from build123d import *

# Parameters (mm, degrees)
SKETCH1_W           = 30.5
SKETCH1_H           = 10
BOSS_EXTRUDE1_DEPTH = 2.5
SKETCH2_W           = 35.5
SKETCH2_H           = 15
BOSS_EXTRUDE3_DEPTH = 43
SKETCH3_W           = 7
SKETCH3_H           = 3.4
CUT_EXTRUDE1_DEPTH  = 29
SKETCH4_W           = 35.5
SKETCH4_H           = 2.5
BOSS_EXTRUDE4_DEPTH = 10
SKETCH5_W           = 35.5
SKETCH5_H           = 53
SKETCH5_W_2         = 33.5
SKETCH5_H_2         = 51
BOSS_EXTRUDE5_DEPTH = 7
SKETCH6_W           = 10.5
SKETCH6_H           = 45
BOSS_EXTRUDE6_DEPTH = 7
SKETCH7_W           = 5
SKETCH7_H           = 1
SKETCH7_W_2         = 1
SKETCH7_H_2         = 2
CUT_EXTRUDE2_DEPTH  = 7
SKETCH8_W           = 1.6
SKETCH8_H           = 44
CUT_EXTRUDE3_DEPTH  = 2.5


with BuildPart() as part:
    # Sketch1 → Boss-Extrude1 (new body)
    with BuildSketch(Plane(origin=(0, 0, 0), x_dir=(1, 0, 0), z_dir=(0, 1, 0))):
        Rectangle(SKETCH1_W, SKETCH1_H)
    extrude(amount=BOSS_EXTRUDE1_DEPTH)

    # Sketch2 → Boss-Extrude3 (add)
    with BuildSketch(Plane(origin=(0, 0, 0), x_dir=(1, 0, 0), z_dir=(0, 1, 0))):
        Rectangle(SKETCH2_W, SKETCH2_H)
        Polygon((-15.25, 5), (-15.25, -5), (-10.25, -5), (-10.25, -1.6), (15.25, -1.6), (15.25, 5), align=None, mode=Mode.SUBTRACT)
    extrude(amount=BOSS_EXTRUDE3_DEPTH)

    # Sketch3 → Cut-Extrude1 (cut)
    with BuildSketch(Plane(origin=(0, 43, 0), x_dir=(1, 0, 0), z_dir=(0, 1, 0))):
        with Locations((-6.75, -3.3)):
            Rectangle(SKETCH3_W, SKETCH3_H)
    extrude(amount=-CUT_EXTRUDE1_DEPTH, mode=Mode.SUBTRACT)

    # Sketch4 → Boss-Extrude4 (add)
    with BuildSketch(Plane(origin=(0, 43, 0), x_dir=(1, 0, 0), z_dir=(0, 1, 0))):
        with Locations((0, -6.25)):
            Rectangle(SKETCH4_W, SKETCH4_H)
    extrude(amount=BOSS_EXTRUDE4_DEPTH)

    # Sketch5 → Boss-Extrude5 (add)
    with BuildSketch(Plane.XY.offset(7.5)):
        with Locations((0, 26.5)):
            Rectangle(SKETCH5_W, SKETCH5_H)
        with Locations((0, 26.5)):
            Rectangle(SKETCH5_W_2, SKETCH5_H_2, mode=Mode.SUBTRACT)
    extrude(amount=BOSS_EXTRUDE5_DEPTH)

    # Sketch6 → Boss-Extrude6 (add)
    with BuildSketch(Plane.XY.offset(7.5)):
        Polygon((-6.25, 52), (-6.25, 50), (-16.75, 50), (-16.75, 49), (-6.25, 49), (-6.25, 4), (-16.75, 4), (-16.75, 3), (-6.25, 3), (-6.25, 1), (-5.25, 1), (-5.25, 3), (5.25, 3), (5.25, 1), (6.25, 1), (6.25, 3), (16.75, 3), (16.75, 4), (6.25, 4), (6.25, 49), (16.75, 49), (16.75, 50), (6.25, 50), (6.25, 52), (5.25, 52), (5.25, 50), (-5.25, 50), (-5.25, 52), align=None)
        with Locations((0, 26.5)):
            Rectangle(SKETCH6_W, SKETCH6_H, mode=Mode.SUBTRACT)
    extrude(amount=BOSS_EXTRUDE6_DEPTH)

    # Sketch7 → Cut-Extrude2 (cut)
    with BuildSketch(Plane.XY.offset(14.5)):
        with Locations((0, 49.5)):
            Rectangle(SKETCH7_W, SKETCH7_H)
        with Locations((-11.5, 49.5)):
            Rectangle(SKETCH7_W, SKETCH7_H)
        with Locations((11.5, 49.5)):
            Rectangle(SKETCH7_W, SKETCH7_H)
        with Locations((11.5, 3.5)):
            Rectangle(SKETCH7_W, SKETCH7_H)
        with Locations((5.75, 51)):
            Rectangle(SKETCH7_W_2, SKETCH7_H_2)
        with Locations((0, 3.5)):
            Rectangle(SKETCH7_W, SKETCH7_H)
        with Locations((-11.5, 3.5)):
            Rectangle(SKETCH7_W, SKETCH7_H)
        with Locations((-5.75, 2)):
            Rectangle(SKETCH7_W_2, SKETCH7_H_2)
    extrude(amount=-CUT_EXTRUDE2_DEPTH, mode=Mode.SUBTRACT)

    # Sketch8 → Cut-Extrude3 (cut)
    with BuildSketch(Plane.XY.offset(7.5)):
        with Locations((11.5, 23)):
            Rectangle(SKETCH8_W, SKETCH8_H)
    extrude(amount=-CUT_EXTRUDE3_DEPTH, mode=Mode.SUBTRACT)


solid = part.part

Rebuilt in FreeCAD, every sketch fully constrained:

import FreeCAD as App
import Part
import Sketcher
Q = App.Units.Quantity


def add_polygon(sketch, points):
    """Adds a closed chain of lines whose ends are joined by coincident constraints."""
    first, n = sketch.GeometryCount, len(points)
    for a, b in zip(points, points[1:] + points[:1]):
        sketch.addGeometry(Part.LineSegment(App.Vector(*a, 0), App.Vector(*b, 0)), False)
    for i in range(n):
        sketch.addConstraint(Sketcher.Constraint("Coincident", first + i, 2, first + (i + 1) % n, 1))

doc = App.newDocument("Part")
body = doc.addObject("PartDesign::Body", "Body")

sketch1 = body.newObject("Sketcher::SketchObject", "Sketch")
sketch1.AttachmentSupport = (doc.getObject("XZ_Plane"), [""])
sketch1.MapMode = "FlatFace"
add_polygon(sketch1, [(-15, -5), (-15, 5), (15, 5), (15, -5)])
sketch1.addConstraint(Sketcher.Constraint("Vertical", 0))
sketch1.addConstraint(Sketcher.Constraint("Horizontal", 1))
sketch1.addConstraint(Sketcher.Constraint("Vertical", 2))
sketch1.addConstraint(Sketcher.Constraint("Horizontal", 3))
sketch1.addConstraint(Sketcher.Constraint("Symmetric", 0, 2, 2, 2, -1, 1))
sketch1.addConstraint(Sketcher.Constraint("DistanceY", 0, 1, 0, 2, Q("10 mm")))
sketch1.addConstraint(Sketcher.Constraint("DistanceX", 1, 1, 1, 2, Q("30.5 mm")))
pad1 = body.newObject("PartDesign::Pad", "Pad")
pad1.Profile = sketch1
pad1.Length = 2.5
pad1.Reversed = True

sketch2 = body.newObject("Sketcher::SketchObject", "Sketch001")
sketch2.AttachmentSupport = (doc.getObject("XZ_Plane"), [""])
sketch2.MapMode = "FlatFace"
add_polygon(sketch2, [(-17.8, -7.5), (-17.8, 7.5), (17.8, 7.5), (17.8, -7.5)])
add_polygon(sketch2, [(-15.2, 5), (-15.2, -5), (15.2, -5), (15.2, 1.6), (-10.2, 1.6), (-10.2, 5)])
sketch2.addConstraint(Sketcher.Constraint("Vertical", 0))
sketch2.addConstraint(Sketcher.Constraint("Horizontal", 1))
sketch2.addConstraint(Sketcher.Constraint("Vertical", 2))
sketch2.addConstraint(Sketcher.Constraint("Horizontal", 3))
sketch2.addConstraint(Sketcher.Constraint("Vertical", 4))
sketch2.addConstraint(Sketcher.Constraint("Horizontal", 5))
sketch2.addConstraint(Sketcher.Constraint("Vertical", 6))
sketch2.addConstraint(Sketcher.Constraint("Horizontal", 7))
sketch2.addConstraint(Sketcher.Constraint("Vertical", 8))
sketch2.addConstraint(Sketcher.Constraint("Horizontal", 9))
sketch2.addConstraint(Sketcher.Constraint("Symmetric", 0, 2, 2, 2, -1, 1))
sketch2.addConstraint(Sketcher.Constraint("Symmetric", 5, 2, 9, 2, -1, 1))
sketch2.addConstraint(Sketcher.Constraint("DistanceX", 9, 2, 9, 1, Q("5 mm")))
sketch2.addConstraint(Sketcher.Constraint("DistanceY", 0, 1, 0, 2, Q("15 mm")))
sketch2.addConstraint(Sketcher.Constraint("DistanceY", 4, 2, 4, 1, Q("10 mm")))
sketch2.addConstraint(Sketcher.Constraint("DistanceX", 1, 1, 1, 2, Q("35.5 mm")))
sketch2.addConstraint(Sketcher.Constraint("DistanceX", 5, 1, 5, 2, Q("30.5 mm")))
sketch2.addConstraint(Sketcher.Constraint("DistanceY", 6, 1, 6, 2, Q("6.6 mm")))
pad2 = body.newObject("PartDesign::Pad", "Pad001")
pad2.Profile = sketch2
pad2.Length = 43
pad2.Reversed = True

sketch3 = body.newObject("Sketcher::SketchObject", "Sketch002")
sketch3.AttachmentSupport = (doc.getObject("XZ_Plane"), [""])
sketch3.MapMode = "FlatFace"
sketch3.AttachmentOffset = App.Placement(App.Vector(0, 0, -43), App.Rotation())
add_polygon(sketch3, [(-10.2, 1.6), (-10.2, 5), (-3.2, 5), (-3.2, 1.6)])
sketch3.addConstraint(Sketcher.Constraint("Vertical", 0))
sketch3.addConstraint(Sketcher.Constraint("Horizontal", 1))
sketch3.addConstraint(Sketcher.Constraint("Vertical", 2))
sketch3.addConstraint(Sketcher.Constraint("Horizontal", 3))
sketch3.addConstraint(Sketcher.Constraint("DistanceX", 1, 1, 1, 2, Q("7 mm")))
sketch3.addConstraint(Sketcher.Constraint("DistanceY", 0, 1, 0, 2, Q("3.4 mm")))
sketch3.addConstraint(Sketcher.Constraint("DistanceY", -1, 1, 0, 2, Q("5 mm")))
sketch3.addConstraint(Sketcher.Constraint("DistanceX", 0, 2, -1, 1, Q("10.25 mm")))
pocket1 = body.newObject("PartDesign::Pocket", "Pocket")
pocket1.Profile = sketch3
pocket1.Length = 29
pocket1.Reversed = True

sketch4 = body.newObject("Sketcher::SketchObject", "Sketch003")
sketch4.AttachmentSupport = (doc.getObject("XZ_Plane"), [""])
sketch4.MapMode = "FlatFace"
sketch4.AttachmentOffset = App.Placement(App.Vector(0, 0, -43), App.Rotation())
add_polygon(sketch4, [(-17.8, 5), (-17.8, 7.5), (17.8, 7.5), (17.8, 5)])
sketch4.addConstraint(Sketcher.Constraint("Vertical", 0))
sketch4.addConstraint(Sketcher.Constraint("Horizontal", 1))
sketch4.addConstraint(Sketcher.Constraint("Vertical", 2))
sketch4.addConstraint(Sketcher.Constraint("Horizontal", 3))
sketch4.addConstraint(Sketcher.Constraint("DistanceX", 1, 1, 1, 2, Q("35.5 mm")))
sketch4.addConstraint(Sketcher.Constraint("DistanceY", 0, 1, 0, 2, Q("2.5 mm")))
sketch4.addConstraint(Sketcher.Constraint("DistanceY", -1, 1, 2, 2, Q("5 mm")))
sketch4.addConstraint(Sketcher.Constraint("DistanceX", 0, 2, -1, 1, Q("17.75 mm")))
pad3 = body.newObject("PartDesign::Pad", "Pad002")
pad3.Profile = sketch4
pad3.Length = 10
pad3.Reversed = True

sketch5 = body.newObject("Sketcher::SketchObject", "Sketch004")
sketch5.AttachmentSupport = (doc.getObject("XY_Plane"), [""])
sketch5.MapMode = "FlatFace"
sketch5.AttachmentOffset = App.Placement(App.Vector(0, 0, 7.5), App.Rotation())
add_polygon(sketch5, [(-18, 53), (-18, 0), (18, 0), (18, 53)])
add_polygon(sketch5, [(17, 1), (-17, 1), (-17, 52), (17, 52)])
sketch5.addConstraint(Sketcher.Constraint("Vertical", 0))
sketch5.addConstraint(Sketcher.Constraint("Horizontal", 1))
sketch5.addConstraint(Sketcher.Constraint("Vertical", 2))
sketch5.addConstraint(Sketcher.Constraint("Horizontal", 3))
sketch5.addConstraint(Sketcher.Constraint("Horizontal", 4))
sketch5.addConstraint(Sketcher.Constraint("Vertical", 5))
sketch5.addConstraint(Sketcher.Constraint("Horizontal", 6))
sketch5.addConstraint(Sketcher.Constraint("Vertical", 7))
sketch5.addConstraint(Sketcher.Constraint("Symmetric", 0, 2, 1, 2, -1, 1))
sketch5.addConstraint(Sketcher.Constraint("DistanceY", 0, 2, 0, 1, Q("53 mm")))
sketch5.addConstraint(Sketcher.Constraint("DistanceY", 5, 1, 5, 2, Q("51 mm")))
sketch5.addConstraint(Sketcher.Constraint("DistanceX", 1, 1, 1, 2, Q("35.5 mm")))
sketch5.addConstraint(Sketcher.Constraint("DistanceX", 4, 2, 4, 1, Q("33.5 mm")))
sketch5.addConstraint(Sketcher.Constraint("DistanceY", -1, 1, 4, 2, Q("1 mm")))
sketch5.addConstraint(Sketcher.Constraint("DistanceX", 0, 2, 4, 2, Q("1 mm")))
pad4 = body.newObject("PartDesign::Pad", "Pad003")
pad4.Profile = sketch5
pad4.Length = 7

sketch6 = body.newObject("Sketcher::SketchObject", "Sketch005")
sketch6.AttachmentSupport = (doc.getObject("XY_Plane"), [""])
sketch6.MapMode = "FlatFace"
sketch6.AttachmentOffset = App.Placement(App.Vector(0, 0, 7.5), App.Rotation())
add_polygon(sketch6, [(-6.2, 52), (-6.2, 50), (-16.8, 50), (-16.8, 49), (-6.2, 49), (-6.2, 4), (-16.8, 4), (-16.8, 3), (-6.2, 3), (-6.2, 1), (-5.2, 1), (-5.2, 3), (5.2, 3), (5.2, 1), (6.2, 1), (6.2, 3), (16.8, 3), (16.8, 4), (6.2, 4), (6.2, 49), (16.8, 49), (16.8, 50), (6.2, 50), (6.2, 52), (5.2, 52), (5.2, 50), (-5.2, 50), (-5.2, 52)])
add_polygon(sketch6, [(5.2, 4), (-5.2, 4), (-5.2, 49), (5.2, 49)])
sketch6.addConstraint(Sketcher.Constraint("Vertical", 0))
sketch6.addConstraint(Sketcher.Constraint("Horizontal", 1))
sketch6.addConstraint(Sketcher.Constraint("Vertical", 2))
sketch6.addConstraint(Sketcher.Constraint("Horizontal", 3))
sketch6.addConstraint(Sketcher.Constraint("Vertical", 4))
sketch6.addConstraint(Sketcher.Constraint("Horizontal", 5))
sketch6.addConstraint(Sketcher.Constraint("Vertical", 6))
sketch6.addConstraint(Sketcher.Constraint("Horizontal", 7))
sketch6.addConstraint(Sketcher.Constraint("Vertical", 8))
sketch6.addConstraint(Sketcher.Constraint("Horizontal", 9))
sketch6.addConstraint(Sketcher.Constraint("Vertical", 10))
sketch6.addConstraint(Sketcher.Constraint("Horizontal", 11))
sketch6.addConstraint(Sketcher.Constraint("Vertical", 12))
sketch6.addConstraint(Sketcher.Constraint("Horizontal", 13))
sketch6.addConstraint(Sketcher.Constraint("Vertical", 14))
sketch6.addConstraint(Sketcher.Constraint("Horizontal", 15))
sketch6.addConstraint(Sketcher.Constraint("Vertical", 16))
sketch6.addConstraint(Sketcher.Constraint("Horizontal", 17))
sketch6.addConstraint(Sketcher.Constraint("Vertical", 18))
sketch6.addConstraint(Sketcher.Constraint("Horizontal", 19))
sketch6.addConstraint(Sketcher.Constraint("Vertical", 20))
sketch6.addConstraint(Sketcher.Constraint("Horizontal", 21))
sketch6.addConstraint(Sketcher.Constraint("Vertical", 22))
sketch6.addConstraint(Sketcher.Constraint("Horizontal", 23))
sketch6.addConstraint(Sketcher.Constraint("Vertical", 24))
sketch6.addConstraint(Sketcher.Constraint("Horizontal", 25))
sketch6.addConstraint(Sketcher.Constraint("Vertical", 26))
sketch6.addConstraint(Sketcher.Constraint("Horizontal", 27))
sketch6.addConstraint(Sketcher.Constraint("Horizontal", 28))
sketch6.addConstraint(Sketcher.Constraint("Vertical", 29))
sketch6.addConstraint(Sketcher.Constraint("Horizontal", 30))
sketch6.addConstraint(Sketcher.Constraint("Vertical", 31))
sketch6.addConstraint(Sketcher.Constraint("Symmetric", 9, 2, 12, 2, -2))
sketch6.addConstraint(Sketcher.Constraint("Symmetric", 7, 2, 14, 2, -2))
sketch6.addConstraint(Sketcher.Constraint("Symmetric", 5, 2, 16, 2, -2))
sketch6.addConstraint(Sketcher.Constraint("Symmetric", 3, 2, 18, 2, -2))
sketch6.addConstraint(Sketcher.Constraint("Symmetric", 1, 2, 20, 2, -2))
sketch6.addConstraint(Sketcher.Constraint("Symmetric", 23, 2, 26, 2, -2))
sketch6.addConstraint(Sketcher.Constraint("Horizontal", 7, 2, 10, 2))
sketch6.addConstraint(Sketcher.Constraint("Horizontal", 21, 2, 24, 2))
sketch6.addConstraint(Sketcher.Constraint("Horizontal", 17, 2, 28, 2))
sketch6.addConstraint(Sketcher.Constraint("Horizontal", 19, 2, 29, 2))
sketch6.addConstraint(Sketcher.Constraint("Vertical", 0, 2, 3, 2))
sketch6.addConstraint(Sketcher.Constraint("Vertical", 2, 2, 5, 2))
sketch6.addConstraint(Sketcher.Constraint("Vertical", 4, 2, 7, 2))
sketch6.addConstraint(Sketcher.Constraint("Vertical", 18, 2, 21, 2))
sketch6.addConstraint(Sketcher.Constraint("Vertical", 12, 2, 23, 2))
sketch6.addConstraint(Sketcher.Constraint("Vertical", 26, 2, 28, 2))
sketch6.addConstraint(Sketcher.Constraint("Vertical", 24, 2, 30, 2))
sketch6.addConstraint(Sketcher.Constraint("Equal", 7, 11))
sketch6.addConstraint(Sketcher.Constraint("Equal", 27, 2))
sketch6.addConstraint(Sketcher.Constraint("Equal", 2, 6))
sketch6.addConstraint(Sketcher.Constraint("Equal", 0, 8))
sketch6.addConstraint(Sketcher.Constraint("DistanceX", 9, 1, 9, 2, Q("1 mm")))
sketch6.addConstraint(Sketcher.Constraint("DistanceY", 0, 2, 0, 1, Q("2 mm")))
sketch6.addConstraint(Sketcher.Constraint("DistanceY", 4, 2, 4, 1, Q("45 mm")))
sketch6.addConstraint(Sketcher.Constraint("DistanceX", 1, 2, 1, 1, Q("10.5 mm")))
sketch6.addConstraint(Sketcher.Constraint("DistanceY", -1, 1, 0, 2, Q("50 mm")))
pad5 = body.newObject("PartDesign::Pad", "Pad004")
pad5.Profile = sketch6
pad5.Length = 7

sketch7 = body.newObject("Sketcher::SketchObject", "Sketch006")
sketch7.AttachmentSupport = (doc.getObject("XY_Plane"), [""])
sketch7.MapMode = "FlatFace"
sketch7.AttachmentOffset = App.Placement(App.Vector(0, 0, 14.5), App.Rotation())
add_polygon(sketch7, [(-2.5, 50), (-2.5, 49), (2.5, 49), (2.5, 50)])
add_polygon(sketch7, [(-14, 50), (-14, 49), (-9, 49), (-9, 50)])
add_polygon(sketch7, [(9, 50), (9, 49), (14, 49), (14, 50)])
add_polygon(sketch7, [(9, 4), (9, 3), (14, 3), (14, 4)])
add_polygon(sketch7, [(5.2, 52), (5.2, 50), (6.2, 50), (6.2, 52)])
add_polygon(sketch7, [(-2.5, 4), (-2.5, 3), (2.5, 3), (2.5, 4)])
add_polygon(sketch7, [(-14, 4), (-14, 3), (-9, 3), (-9, 4)])
add_polygon(sketch7, [(-6.2, 3), (-6.2, 1), (-5.2, 1), (-5.2, 3)])
sketch7.addConstraint(Sketcher.Constraint("Vertical", 0))
sketch7.addConstraint(Sketcher.Constraint("Horizontal", 1))
sketch7.addConstraint(Sketcher.Constraint("Vertical", 2))
sketch7.addConstraint(Sketcher.Constraint("Horizontal", 3))
sketch7.addConstraint(Sketcher.Constraint("Vertical", 4))
sketch7.addConstraint(Sketcher.Constraint("Horizontal", 5))
sketch7.addConstraint(Sketcher.Constraint("Vertical", 6))
sketch7.addConstraint(Sketcher.Constraint("Horizontal", 7))
sketch7.addConstraint(Sketcher.Constraint("Vertical", 8))
sketch7.addConstraint(Sketcher.Constraint("Horizontal", 9))
sketch7.addConstraint(Sketcher.Constraint("Vertical", 10))
sketch7.addConstraint(Sketcher.Constraint("Horizontal", 11))
sketch7.addConstraint(Sketcher.Constraint("Vertical", 12))
sketch7.addConstraint(Sketcher.Constraint("Horizontal", 13))
sketch7.addConstraint(Sketcher.Constraint("Vertical", 14))
sketch7.addConstraint(Sketcher.Constraint("Horizontal", 15))
sketch7.addConstraint(Sketcher.Constraint("Vertical", 16))
sketch7.addConstraint(Sketcher.Constraint("Horizontal", 17))
sketch7.addConstraint(Sketcher.Constraint("Vertical", 18))
sketch7.addConstraint(Sketcher.Constraint("Horizontal", 19))
sketch7.addConstraint(Sketcher.Constraint("Vertical", 20))
sketch7.addConstraint(Sketcher.Constraint("Horizontal", 21))
sketch7.addConstraint(Sketcher.Constraint("Vertical", 22))
sketch7.addConstraint(Sketcher.Constraint("Horizontal", 23))
sketch7.addConstraint(Sketcher.Constraint("Vertical", 24))
sketch7.addConstraint(Sketcher.Constraint("Horizontal", 25))
sketch7.addConstraint(Sketcher.Constraint("Vertical", 26))
sketch7.addConstraint(Sketcher.Constraint("Horizontal", 27))
sketch7.addConstraint(Sketcher.Constraint("Vertical", 28))
sketch7.addConstraint(Sketcher.Constraint("Horizontal", 29))
sketch7.addConstraint(Sketcher.Constraint("Vertical", 30))
sketch7.addConstraint(Sketcher.Constraint("Horizontal", 31))
sketch7.addConstraint(Sketcher.Constraint("Symmetric", 5, 2, 8, 2, -2))
sketch7.addConstraint(Sketcher.Constraint("Symmetric", 7, 2, 10, 2, -2))
sketch7.addConstraint(Sketcher.Constraint("Symmetric", 13, 2, 24, 2, -2))
sketch7.addConstraint(Sketcher.Constraint("Symmetric", 15, 2, 26, 2, -2))
sketch7.addConstraint(Sketcher.Constraint("Horizontal", 1, 2, 4, 2))
sketch7.addConstraint(Sketcher.Constraint("Horizontal", 3, 2, 6, 2))
sketch7.addConstraint(Sketcher.Constraint("Horizontal", 11, 2, 16, 2))
sketch7.addConstraint(Sketcher.Constraint("Horizontal", 13, 2, 20, 2))
sketch7.addConstraint(Sketcher.Constraint("Horizontal", 15, 2, 22, 2))
sketch7.addConstraint(Sketcher.Constraint("Horizontal", 25, 2, 30, 2))
sketch7.addConstraint(Sketcher.Constraint("Vertical", 11, 2, 12, 2))
sketch7.addConstraint(Sketcher.Constraint("Vertical", 10, 2, 13, 2))
sketch7.addConstraint(Sketcher.Constraint("Vertical", 3, 2, 20, 2))
sketch7.addConstraint(Sketcher.Constraint("Vertical", 2, 2, 21, 2))
sketch7.addConstraint(Sketcher.Constraint("Equal", 3, 5))
sketch7.addConstraint(Sketcher.Constraint("Equal", 19, 29))
sketch7.addConstraint(Sketcher.Constraint("Equal", 31, 0))
sketch7.addConstraint(Sketcher.Constraint("Equal", 10, 12))
sketch7.addConstraint(Sketcher.Constraint("Equal", 18, 28))
sketch7.addConstraint(Sketcher.Constraint("DistanceX", 1, 1, 1, 2, Q("5 mm")))
sketch7.addConstraint(Sketcher.Constraint("DistanceX", 17, 1, 17, 2, Q("1 mm")))
sketch7.addConstraint(Sketcher.Constraint("DistanceY", 16, 2, 16, 1, Q("2 mm")))
sketch7.addConstraint(Sketcher.Constraint("DistanceY", -1, 1, 0, 2, Q("49 mm")))
sketch7.addConstraint(Sketcher.Constraint("DistanceX", 4, 2, -1, 1, Q("14 mm")))
sketch7.addConstraint(Sketcher.Constraint("DistanceY", -1, 1, 12, 2, Q("3 mm")))
sketch7.addConstraint(Sketcher.Constraint("DistanceX", 0, 2, -1, 1, Q("2.5 mm")))
sketch7.addConstraint(Sketcher.Constraint("DistanceX", -1, 1, 16, 2, Q("5.25 mm")))
sketch7.addConstraint(Sketcher.Constraint("DistanceX", 28, 2, -1, 1, Q("6.25 mm")))
pocket2 = body.newObject("PartDesign::Pocket", "Pocket001")
pocket2.Profile = sketch7
pocket2.Length = 7

sketch8 = body.newObject("Sketcher::SketchObject", "Sketch007")
sketch8.AttachmentSupport = (doc.getObject("XY_Plane"), [""])
sketch8.MapMode = "FlatFace"
sketch8.AttachmentOffset = App.Placement(App.Vector(0, 0, 7.5), App.Rotation())
add_polygon(sketch8, [(10.7, 45), (10.7, 1), (12.3, 1), (12.3, 45)])
sketch8.addConstraint(Sketcher.Constraint("Vertical", 0))
sketch8.addConstraint(Sketcher.Constraint("Horizontal", 1))
sketch8.addConstraint(Sketcher.Constraint("Vertical", 2))
sketch8.addConstraint(Sketcher.Constraint("Horizontal", 3))
sketch8.addConstraint(Sketcher.Constraint("DistanceY", 0, 2, 0, 1, Q("44 mm")))
sketch8.addConstraint(Sketcher.Constraint("DistanceX", 1, 1, 1, 2, Q("1.6 mm")))
sketch8.addConstraint(Sketcher.Constraint("DistanceY", -1, 1, 0, 2, Q("1 mm")))
sketch8.addConstraint(Sketcher.Constraint("DistanceX", -1, 1, 0, 2, Q("10.7 mm")))
pocket3 = body.newObject("PartDesign::Pocket", "Pocket002")
pocket3.Profile = sketch8
pocket3.Length = 2.5

doc.recompute()
